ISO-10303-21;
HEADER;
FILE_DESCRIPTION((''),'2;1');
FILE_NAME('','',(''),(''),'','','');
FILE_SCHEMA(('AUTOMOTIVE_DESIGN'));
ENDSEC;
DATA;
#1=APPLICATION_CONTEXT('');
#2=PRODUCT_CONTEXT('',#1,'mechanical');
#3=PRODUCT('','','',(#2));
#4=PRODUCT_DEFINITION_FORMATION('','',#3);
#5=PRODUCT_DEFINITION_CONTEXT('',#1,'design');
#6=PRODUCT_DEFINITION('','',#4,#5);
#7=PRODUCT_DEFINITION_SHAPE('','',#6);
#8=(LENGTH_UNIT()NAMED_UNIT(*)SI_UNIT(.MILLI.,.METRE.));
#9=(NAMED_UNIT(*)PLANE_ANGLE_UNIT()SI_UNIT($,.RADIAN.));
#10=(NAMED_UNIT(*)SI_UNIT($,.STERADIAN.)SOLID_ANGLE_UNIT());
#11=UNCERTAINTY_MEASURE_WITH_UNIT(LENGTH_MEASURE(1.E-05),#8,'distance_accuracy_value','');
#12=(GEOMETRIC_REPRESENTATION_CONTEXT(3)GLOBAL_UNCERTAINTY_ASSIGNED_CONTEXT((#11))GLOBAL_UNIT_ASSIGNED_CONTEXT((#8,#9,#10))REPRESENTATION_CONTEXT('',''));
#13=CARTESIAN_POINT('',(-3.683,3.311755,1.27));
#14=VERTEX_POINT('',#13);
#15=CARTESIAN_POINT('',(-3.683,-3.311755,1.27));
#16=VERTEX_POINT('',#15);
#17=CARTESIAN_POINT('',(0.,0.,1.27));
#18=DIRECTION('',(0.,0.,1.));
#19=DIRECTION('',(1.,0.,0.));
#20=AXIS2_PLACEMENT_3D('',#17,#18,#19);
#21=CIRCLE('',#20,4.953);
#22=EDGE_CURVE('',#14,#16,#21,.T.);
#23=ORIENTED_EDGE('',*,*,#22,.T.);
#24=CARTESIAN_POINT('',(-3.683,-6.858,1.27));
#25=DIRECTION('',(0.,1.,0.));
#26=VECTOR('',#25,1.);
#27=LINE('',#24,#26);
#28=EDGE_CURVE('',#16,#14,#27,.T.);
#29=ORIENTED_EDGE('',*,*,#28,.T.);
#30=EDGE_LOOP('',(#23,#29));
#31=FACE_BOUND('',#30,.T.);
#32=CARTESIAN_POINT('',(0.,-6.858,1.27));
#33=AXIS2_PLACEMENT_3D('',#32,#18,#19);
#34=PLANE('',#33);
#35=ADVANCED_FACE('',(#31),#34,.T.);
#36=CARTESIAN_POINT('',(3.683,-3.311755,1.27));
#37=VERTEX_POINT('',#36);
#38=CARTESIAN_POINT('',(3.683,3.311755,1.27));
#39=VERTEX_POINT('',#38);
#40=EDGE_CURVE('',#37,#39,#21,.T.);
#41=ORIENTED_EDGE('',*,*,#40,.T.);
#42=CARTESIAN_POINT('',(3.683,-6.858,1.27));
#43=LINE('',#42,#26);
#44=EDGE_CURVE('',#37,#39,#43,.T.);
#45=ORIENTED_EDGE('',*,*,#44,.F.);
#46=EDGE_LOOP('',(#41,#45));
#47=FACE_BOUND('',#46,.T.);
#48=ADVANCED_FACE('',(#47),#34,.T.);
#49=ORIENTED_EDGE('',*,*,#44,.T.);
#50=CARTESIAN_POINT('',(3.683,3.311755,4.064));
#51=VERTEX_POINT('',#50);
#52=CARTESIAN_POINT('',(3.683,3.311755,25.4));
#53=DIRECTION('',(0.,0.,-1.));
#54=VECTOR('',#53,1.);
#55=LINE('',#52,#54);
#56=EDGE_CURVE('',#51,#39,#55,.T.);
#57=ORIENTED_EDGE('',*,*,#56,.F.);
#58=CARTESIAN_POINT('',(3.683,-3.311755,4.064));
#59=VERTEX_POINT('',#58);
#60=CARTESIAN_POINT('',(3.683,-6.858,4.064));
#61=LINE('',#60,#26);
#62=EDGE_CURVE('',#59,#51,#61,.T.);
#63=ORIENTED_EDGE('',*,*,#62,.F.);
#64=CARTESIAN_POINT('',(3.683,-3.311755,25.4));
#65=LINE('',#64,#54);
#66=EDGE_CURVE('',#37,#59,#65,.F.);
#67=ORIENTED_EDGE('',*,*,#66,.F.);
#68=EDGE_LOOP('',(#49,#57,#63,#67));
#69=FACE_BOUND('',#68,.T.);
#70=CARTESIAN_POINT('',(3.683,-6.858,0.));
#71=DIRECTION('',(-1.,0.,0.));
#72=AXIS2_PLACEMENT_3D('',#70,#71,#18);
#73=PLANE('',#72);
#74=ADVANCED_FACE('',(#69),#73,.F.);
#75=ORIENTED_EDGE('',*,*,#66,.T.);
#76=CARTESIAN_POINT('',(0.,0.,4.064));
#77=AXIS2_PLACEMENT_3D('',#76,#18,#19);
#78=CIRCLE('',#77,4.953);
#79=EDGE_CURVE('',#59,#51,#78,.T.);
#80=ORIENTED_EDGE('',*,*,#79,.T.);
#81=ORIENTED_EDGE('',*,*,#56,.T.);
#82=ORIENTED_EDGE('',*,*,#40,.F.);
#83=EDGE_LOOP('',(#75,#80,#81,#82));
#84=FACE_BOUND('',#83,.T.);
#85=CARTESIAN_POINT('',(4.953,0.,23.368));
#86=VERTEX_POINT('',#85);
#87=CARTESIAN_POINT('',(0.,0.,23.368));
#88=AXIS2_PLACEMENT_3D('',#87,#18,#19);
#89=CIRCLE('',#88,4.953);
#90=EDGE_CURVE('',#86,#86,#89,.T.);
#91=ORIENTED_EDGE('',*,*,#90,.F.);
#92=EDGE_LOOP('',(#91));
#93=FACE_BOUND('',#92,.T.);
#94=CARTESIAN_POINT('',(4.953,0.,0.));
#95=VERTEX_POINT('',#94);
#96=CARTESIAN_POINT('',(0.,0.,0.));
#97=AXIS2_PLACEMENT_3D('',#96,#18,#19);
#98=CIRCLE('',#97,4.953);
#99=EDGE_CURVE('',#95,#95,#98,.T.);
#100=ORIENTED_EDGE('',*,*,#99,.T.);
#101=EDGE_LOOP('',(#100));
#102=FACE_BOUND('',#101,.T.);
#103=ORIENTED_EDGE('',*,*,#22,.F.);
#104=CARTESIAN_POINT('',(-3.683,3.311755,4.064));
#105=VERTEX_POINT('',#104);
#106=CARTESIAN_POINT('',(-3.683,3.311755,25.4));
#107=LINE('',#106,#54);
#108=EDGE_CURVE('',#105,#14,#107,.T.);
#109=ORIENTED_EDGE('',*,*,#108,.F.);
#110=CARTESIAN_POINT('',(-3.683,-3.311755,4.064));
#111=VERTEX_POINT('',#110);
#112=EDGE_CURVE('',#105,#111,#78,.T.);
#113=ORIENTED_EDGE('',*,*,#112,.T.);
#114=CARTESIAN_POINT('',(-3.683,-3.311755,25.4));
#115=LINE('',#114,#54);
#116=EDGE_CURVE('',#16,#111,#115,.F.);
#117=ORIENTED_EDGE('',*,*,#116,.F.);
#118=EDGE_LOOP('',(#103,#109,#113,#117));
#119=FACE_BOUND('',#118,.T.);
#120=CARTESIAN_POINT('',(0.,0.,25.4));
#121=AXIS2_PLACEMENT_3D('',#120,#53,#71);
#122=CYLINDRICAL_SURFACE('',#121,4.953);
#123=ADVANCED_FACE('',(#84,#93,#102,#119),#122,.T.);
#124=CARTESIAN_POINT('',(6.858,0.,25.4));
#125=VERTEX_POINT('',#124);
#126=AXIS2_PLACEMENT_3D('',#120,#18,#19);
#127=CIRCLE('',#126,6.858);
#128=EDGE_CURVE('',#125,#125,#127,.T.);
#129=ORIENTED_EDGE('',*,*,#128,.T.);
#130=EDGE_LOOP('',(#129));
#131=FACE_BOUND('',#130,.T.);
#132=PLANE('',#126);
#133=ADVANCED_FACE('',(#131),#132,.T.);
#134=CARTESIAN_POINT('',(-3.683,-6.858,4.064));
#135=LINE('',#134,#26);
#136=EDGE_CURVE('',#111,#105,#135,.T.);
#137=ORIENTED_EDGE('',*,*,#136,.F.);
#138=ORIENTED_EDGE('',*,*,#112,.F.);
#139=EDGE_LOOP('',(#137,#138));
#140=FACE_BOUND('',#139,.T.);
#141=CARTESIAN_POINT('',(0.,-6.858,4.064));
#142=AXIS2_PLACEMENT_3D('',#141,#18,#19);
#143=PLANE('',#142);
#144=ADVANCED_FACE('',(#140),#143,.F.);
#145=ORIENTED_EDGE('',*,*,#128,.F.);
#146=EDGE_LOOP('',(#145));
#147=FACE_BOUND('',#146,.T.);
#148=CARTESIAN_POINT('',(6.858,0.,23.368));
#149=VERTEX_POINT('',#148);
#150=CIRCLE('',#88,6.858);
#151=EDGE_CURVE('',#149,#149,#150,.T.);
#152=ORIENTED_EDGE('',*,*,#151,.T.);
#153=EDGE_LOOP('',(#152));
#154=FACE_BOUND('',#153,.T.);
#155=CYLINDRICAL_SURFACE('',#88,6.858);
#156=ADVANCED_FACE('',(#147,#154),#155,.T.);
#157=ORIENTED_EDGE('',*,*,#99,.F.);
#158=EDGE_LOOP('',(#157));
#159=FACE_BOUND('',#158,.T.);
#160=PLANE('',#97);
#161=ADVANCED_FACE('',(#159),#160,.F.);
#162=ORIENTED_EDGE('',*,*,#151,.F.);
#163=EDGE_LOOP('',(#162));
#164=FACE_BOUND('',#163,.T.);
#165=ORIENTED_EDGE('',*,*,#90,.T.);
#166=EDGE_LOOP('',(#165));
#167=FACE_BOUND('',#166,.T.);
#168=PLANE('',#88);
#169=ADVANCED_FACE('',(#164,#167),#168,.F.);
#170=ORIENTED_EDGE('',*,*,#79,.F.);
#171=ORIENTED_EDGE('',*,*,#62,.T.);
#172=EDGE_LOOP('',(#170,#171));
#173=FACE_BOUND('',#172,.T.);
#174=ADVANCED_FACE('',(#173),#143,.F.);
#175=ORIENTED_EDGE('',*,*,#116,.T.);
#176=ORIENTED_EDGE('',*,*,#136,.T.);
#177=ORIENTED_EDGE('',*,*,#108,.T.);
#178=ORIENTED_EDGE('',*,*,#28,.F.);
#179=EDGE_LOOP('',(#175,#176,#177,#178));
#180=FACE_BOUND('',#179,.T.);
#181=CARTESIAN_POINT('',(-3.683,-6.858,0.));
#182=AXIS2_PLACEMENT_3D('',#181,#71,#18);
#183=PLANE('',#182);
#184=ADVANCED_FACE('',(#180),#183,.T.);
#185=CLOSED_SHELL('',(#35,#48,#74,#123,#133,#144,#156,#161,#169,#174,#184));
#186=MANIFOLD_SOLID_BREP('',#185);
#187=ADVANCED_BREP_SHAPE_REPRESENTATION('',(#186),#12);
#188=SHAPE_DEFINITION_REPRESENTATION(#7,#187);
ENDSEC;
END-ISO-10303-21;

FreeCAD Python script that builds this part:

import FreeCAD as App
import Part
import Sketcher
Q = App.Units.Quantity

doc = App.newDocument("Part")
body = doc.addObject("PartDesign::Body", "Body")

# Sketch on XY plane
sketch1 = body.newObject("Sketcher::SketchObject", "Sketch")
sketch1.AttachmentSupport = (doc.getObject("XY_Plane"), [""])
sketch1.MapMode = "FlatFace"
sketch1.addGeometry(Part.Circle(App.Vector(0, 0, 0), App.Vector(0, 0, 1), 5), False)
sketch1.addConstraint(Sketcher.Constraint("Coincident", 0, 3, -1, 1))
sketch1.addConstraint(Sketcher.Constraint("Diameter", 0, Q("0.39 in")))
pad1 = body.newObject("PartDesign::Pad", "Pad")
pad1.Profile = sketch1
pad1.Length = Q("1 in")

# Sketch on XY plane
sketch2 = body.newObject("Sketcher::SketchObject", "Sketch001")
sketch2.AttachmentSupport = (doc.getObject("XY_Plane"), [""])
sketch2.MapMode = "FlatFace"
sketch2.AttachmentOffset = App.Placement(App.Vector(0, 0, 1 * 25.4), App.Rotation())
sketch2.addGeometry(Part.Circle(App.Vector(0, 0, 0), App.Vector(0, 0, 1), 7), False)
sketch2.addConstraint(Sketcher.Constraint("Coincident", 0, 3, -1, 1))
sketch2.addConstraint(Sketcher.Constraint("Diameter", 0, Q("0.54 in")))
pad2 = body.newObject("PartDesign::Pad", "Pad001")
pad2.Profile = sketch2
pad2.Length = Q("0.08 in")
pad2.Reversed = True

# Sketch on XZ plane
sketch3 = body.newObject("Sketcher::SketchObject", "Sketch002")
sketch3.AttachmentSupport = (doc.getObject("XZ_Plane"), [""])
sketch3.MapMode = "FlatFace"
sketch3.addGeometry(Part.LineSegment(App.Vector(3.7, 1.3, 0), App.Vector(3.7, 4.1, 0)), False)
sketch3.addGeometry(Part.LineSegment(App.Vector(3.7, 4.1, 0), App.Vector(5, 4.1, 0)), False)
sketch3.addGeometry(Part.LineSegment(App.Vector(5, 4.1, 0), App.Vector(5, 1.3, 0)), False)
sketch3.addGeometry(Part.LineSegment(App.Vector(5, 1.3, 0), App.Vector(3.7, 1.3, 0)), False)
sketch3.addGeometry(Part.LineSegment(App.Vector(-5, 1.3, 0), App.Vector(-5, 4.1, 0)), False)
sketch3.addGeometry(Part.LineSegment(App.Vector(-5, 4.1, 0), App.Vector(-3.7, 4.1, 0)), False)
sketch3.addGeometry(Part.LineSegment(App.Vector(-3.7, 4.1, 0), App.Vector(-3.7, 1.3, 0)), False)
sketch3.addGeometry(Part.LineSegment(App.Vector(-3.7, 1.3, 0), App.Vector(-5, 1.3, 0)), False)
sketch3.addConstraint(Sketcher.Constraint("Coincident", 0, 2, 1, 1))
sketch3.addConstraint(Sketcher.Constraint("Coincident", 1, 2, 2, 1))
sketch3.addConstraint(Sketcher.Constraint("Coincident", 2, 2, 3, 1))
sketch3.addConstraint(Sketcher.Constraint("Coincident", 3, 2, 0, 1))
sketch3.addConstraint(Sketcher.Constraint("Coincident", 4, 2, 5, 1))
sketch3.addConstraint(Sketcher.Constraint("Coincident", 5, 2, 6, 1))
sketch3.addConstraint(Sketcher.Constraint("Coincident", 6, 2, 7, 1))
sketch3.addConstraint(Sketcher.Constraint("Coincident", 7, 2, 4, 1))
sketch3.addConstraint(Sketcher.Constraint("Vertical", 0))
sketch3.addConstraint(Sketcher.Constraint("Horizontal", 1))
sketch3.addConstraint(Sketcher.Constraint("Vertical", 2))
sketch3.addConstraint(Sketcher.Constraint("Horizontal", 3))
sketch3.addConstraint(Sketcher.Constraint("Vertical", 4))
sketch3.addConstraint(Sketcher.Constraint("Horizontal", 5))
sketch3.addConstraint(Sketcher.Constraint("Vertical", 6))
sketch3.addConstraint(Sketcher.Constraint("Horizontal", 7))
sketch3.addConstraint(Sketcher.Constraint("Symmetric", 1, 2, 4, 2, -2))
sketch3.addConstraint(Sketcher.Constraint("Symmetric", 3, 2, 6, 2, -2))
sketch3.addConstraint(Sketcher.Constraint("DistanceX", 1, 1, 1, 2, Q("0.05 in")))
sketch3.addConstraint(Sketcher.Constraint("DistanceY", 0, 1, 0, 2, Q("0.11 in")))
sketch3.addConstraint(Sketcher.Constraint("DistanceY", -1, 1, 0, 2, Q("0.16 in")))
sketch3.addConstraint(Sketcher.Constraint("DistanceX", 4, 2, 0, 2, Q("0.34 in")))
pocket1 = body.newObject("PartDesign::Pocket", "Pocket")
pocket1.Profile = sketch3
pocket1.Type = "ThroughAll"
pocket1.Midplane = True

doc.recompute()
